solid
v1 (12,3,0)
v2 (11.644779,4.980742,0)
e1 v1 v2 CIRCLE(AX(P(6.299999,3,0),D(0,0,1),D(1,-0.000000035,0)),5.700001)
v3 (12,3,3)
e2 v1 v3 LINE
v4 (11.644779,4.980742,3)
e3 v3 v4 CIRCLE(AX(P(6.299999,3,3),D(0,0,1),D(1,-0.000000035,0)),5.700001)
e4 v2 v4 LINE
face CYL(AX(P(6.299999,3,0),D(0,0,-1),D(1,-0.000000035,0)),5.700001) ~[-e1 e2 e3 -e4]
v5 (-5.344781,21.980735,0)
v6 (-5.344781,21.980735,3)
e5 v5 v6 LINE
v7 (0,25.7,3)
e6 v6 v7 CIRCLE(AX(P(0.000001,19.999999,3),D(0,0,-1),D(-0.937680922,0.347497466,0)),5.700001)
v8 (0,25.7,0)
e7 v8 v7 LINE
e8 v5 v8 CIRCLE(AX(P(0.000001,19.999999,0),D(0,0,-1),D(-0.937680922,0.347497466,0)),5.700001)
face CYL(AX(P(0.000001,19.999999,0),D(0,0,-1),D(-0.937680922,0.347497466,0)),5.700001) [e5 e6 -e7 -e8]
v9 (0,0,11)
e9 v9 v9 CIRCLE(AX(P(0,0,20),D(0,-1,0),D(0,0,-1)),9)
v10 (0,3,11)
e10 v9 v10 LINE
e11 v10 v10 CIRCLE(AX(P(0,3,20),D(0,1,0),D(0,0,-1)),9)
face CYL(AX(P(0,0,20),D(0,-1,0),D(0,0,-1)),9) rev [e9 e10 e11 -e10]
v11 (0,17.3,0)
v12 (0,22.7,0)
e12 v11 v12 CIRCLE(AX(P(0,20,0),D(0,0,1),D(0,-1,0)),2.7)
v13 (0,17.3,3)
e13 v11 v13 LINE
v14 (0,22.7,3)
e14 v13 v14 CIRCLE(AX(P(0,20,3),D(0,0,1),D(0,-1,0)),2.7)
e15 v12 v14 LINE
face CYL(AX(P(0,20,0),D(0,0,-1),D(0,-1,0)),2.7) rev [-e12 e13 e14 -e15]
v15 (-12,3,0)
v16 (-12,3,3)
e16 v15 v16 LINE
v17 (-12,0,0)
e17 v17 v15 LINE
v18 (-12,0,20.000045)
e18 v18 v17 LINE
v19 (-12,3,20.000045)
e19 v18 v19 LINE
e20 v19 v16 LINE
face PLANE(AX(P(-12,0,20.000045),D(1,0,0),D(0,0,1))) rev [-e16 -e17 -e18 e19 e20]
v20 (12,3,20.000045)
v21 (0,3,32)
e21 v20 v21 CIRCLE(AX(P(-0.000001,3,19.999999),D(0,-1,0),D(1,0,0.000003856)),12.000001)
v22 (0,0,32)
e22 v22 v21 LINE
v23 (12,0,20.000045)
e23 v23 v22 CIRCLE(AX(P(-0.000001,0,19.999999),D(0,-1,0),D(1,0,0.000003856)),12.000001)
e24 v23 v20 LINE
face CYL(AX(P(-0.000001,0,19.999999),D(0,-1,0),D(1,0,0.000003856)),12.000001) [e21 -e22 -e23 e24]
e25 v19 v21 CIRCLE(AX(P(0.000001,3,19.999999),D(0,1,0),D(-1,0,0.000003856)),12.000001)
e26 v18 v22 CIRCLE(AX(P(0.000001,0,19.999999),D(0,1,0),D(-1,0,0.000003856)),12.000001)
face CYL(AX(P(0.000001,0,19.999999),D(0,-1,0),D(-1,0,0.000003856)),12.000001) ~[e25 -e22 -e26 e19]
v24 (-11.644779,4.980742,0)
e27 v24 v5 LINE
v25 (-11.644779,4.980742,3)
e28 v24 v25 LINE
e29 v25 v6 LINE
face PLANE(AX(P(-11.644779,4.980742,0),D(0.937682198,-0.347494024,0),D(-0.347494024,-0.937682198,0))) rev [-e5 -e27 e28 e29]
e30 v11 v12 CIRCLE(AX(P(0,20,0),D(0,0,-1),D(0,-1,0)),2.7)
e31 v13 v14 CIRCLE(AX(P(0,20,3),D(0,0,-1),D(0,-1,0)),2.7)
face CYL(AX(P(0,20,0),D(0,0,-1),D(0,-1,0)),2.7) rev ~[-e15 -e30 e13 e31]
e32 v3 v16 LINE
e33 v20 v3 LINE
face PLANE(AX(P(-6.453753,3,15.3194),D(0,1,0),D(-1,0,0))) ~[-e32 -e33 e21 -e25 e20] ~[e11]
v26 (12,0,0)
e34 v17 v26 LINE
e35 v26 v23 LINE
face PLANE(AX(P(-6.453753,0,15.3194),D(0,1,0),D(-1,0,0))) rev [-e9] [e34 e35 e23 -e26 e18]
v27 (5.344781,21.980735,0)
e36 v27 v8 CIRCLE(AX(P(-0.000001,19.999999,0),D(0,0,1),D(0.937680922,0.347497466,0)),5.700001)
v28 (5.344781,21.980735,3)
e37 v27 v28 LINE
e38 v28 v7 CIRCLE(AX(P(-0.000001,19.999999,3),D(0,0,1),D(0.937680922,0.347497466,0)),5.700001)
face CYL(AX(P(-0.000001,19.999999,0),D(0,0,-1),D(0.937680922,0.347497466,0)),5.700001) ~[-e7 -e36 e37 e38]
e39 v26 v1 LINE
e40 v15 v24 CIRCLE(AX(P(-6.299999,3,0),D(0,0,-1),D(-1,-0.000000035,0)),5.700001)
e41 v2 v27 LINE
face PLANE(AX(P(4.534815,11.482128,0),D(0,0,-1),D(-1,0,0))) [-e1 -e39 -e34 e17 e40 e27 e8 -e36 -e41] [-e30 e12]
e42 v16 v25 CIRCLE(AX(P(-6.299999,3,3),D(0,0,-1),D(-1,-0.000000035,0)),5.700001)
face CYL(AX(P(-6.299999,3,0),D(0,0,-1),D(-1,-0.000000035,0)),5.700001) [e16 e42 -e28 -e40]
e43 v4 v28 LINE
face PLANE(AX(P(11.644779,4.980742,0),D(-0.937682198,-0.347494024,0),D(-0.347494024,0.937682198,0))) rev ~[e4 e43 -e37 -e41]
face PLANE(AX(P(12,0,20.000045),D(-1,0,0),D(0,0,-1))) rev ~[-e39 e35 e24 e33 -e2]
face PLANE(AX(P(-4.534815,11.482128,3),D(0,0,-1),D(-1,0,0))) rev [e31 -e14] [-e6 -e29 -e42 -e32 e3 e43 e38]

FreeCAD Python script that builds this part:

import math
import FreeCAD as App
import Part
import Sketcher

doc = App.newDocument("Part")
body = doc.addObject("PartDesign::Body", "Body")

sketch1 = body.newObject("Sketcher::SketchObject", "Sketch")
sketch1.AttachmentSupport = (doc.getObject("XY_Plane"), [""])
sketch1.MapMode = "FlatFace"
sketch1.addGeometry(Part.ArcOfCircle(Part.Circle(App.Vector(0, 20, 0), App.Vector(0, 0, 1), 2.7), math.radians(-90), math.radians(90)), False)
sketch1.addGeometry(Part.LineSegment(App.Vector(0, 17.3, 0), App.Vector(0, 0, 0)), False)
sketch1.addGeometry(Part.LineSegment(App.Vector(0, 0, 0), App.Vector(12, 0, 0)), False)
sketch1.addGeometry(Part.LineSegment(App.Vector(12, 0, 0), App.Vector(12, 3, 0)), False)
sketch1.addGeometry(Part.ArcOfCircle(Part.Circle(App.Vector(6.299999, 3, 0), App.Vector(0, 0, 1), 5.700001), math.radians(-0.000002), math.radians(20.334389)), False)
sketch1.addGeometry(Part.LineSegment(App.Vector(11.644779, 4.980742, 0), App.Vector(5.344781, 21.980735, 0)), False)
sketch1.addGeometry(Part.ArcOfCircle(Part.Circle(App.Vector(-0.000001, 19.999999, 0), App.Vector(0, 0, 1), 5.700001), math.radians(20.334325), math.radians(89.999989)), False)
sketch1.addGeometry(Part.LineSegment(App.Vector(0, 25.7, 0), App.Vector(0, 22.7, 0)), False)
sketch1.addConstraint(Sketcher.Constraint("Coincident", 0, 1, 1, 1))
sketch1.addConstraint(Sketcher.Constraint("Coincident", 1, 2, 2, 1))
sketch1.addConstraint(Sketcher.Constraint("Coincident", 2, 2, 3, 1))
sketch1.addConstraint(Sketcher.Constraint("Tangent", 3, 2, 4, 1))
sketch1.addConstraint(Sketcher.Constraint("Coincident", 4, 2, 5, 1))
sketch1.addConstraint(Sketcher.Constraint("Coincident", 5, 2, 6, 1))
sketch1.addConstraint(Sketcher.Constraint("Coincident", 6, 2, 7, 1))
sketch1.addConstraint(Sketcher.Constraint("Coincident", 7, 2, 0, 2))
sketch1.addConstraint(Sketcher.Constraint("Vertical", 1))
sketch1.addConstraint(Sketcher.Constraint("Horizontal", 2))
sketch1.addConstraint(Sketcher.Constraint("Vertical", 3))
sketch1.addConstraint(Sketcher.Constraint("Vertical", 7))
sketch1.addConstraint(Sketcher.Constraint("Coincident", 1, 2, -1, 1))
sketch1.addConstraint(Sketcher.Constraint("Coincident", 6, 3, 0, 3))
sketch1.addConstraint(Sketcher.Constraint("Equal", 4, 6))
sketch1.addConstraint(Sketcher.Constraint("PointOnObject", 0, 3, -2))
sketch1.addConstraint(Sketcher.Constraint("PointOnObject", 6, 2, -2))
sketch1.addConstraint(Sketcher.Constraint("Equal", 3, 7))
sketch1.addConstraint(Sketcher.Constraint("Radius", 0, 2.7))
sketch1.addConstraint(Sketcher.Constraint("Radius", 4, 5.700001))
sketch1.addConstraint(Sketcher.Constraint("DistanceX", 2, 1, 2, 2, 12.0))
sketch1.addConstraint(Sketcher.Constraint("DistanceY", 1, 2, 1, 1, 17.3))
sketch1.addConstraint(Sketcher.Constraint("DistanceX", -1, 1, 4, 2, 11.644779))
sketch1.addConstraint(Sketcher.Constraint("DistanceX", -1, 1, 5, 2, 5.344781))
pad1 = body.newObject("PartDesign::Pad", "Pad")
pad1.Profile = sketch1
pad1.Length = 3

sketch2 = body.newObject("Sketcher::SketchObject", "Sketch001")
sketch2.AttachmentSupport = (doc.getObject("XZ_Plane"), [""])
sketch2.MapMode = "FlatFace"
sketch2.addGeometry(Part.ArcOfCircle(Part.Circle(App.Vector(0, 20, 0), App.Vector(0, 0, 1), 9), math.radians(-90), math.radians(90)), False)
sketch2.addGeometry(Part.LineSegment(App.Vector(0, 11, 0), App.Vector(0, 0, 0)), False)
sketch2.addGeometry(Part.LineSegment(App.Vector(0, 0, 0), App.Vector(12, 0, 0)), False)
sketch2.addGeometry(Part.LineSegment(App.Vector(12, 0, 0), App.Vector(12, 20.000045, 0)), False)
sketch2.addGeometry(Part.ArcOfCircle(Part.Circle(App.Vector(-0.000001, 19.999999, 0), App.Vector(0, 0, 1), 12.000001), math.radians(0.000221), math.radians(89.999994)), False)
sketch2.addGeometry(Part.LineSegment(App.Vector(0, 32, 0), App.Vector(0, 29, 0)), False)
sketch2.addConstraint(Sketcher.Constraint("Coincident", 0, 1, 1, 1))
sketch2.addConstraint(Sketcher.Constraint("Coincident", 1, 2, 2, 1))
sketch2.addConstraint(Sketcher.Constraint("Coincident", 2, 2, 3, 1))
sketch2.addConstraint(Sketcher.Constraint("Coincident", 3, 2, 4, 1))
sketch2.addConstraint(Sketcher.Constraint("Coincident", 4, 2, 5, 1))
sketch2.addConstraint(Sketcher.Constraint("Coincident", 5, 2, 0, 2))
sketch2.addConstraint(Sketcher.Constraint("Vertical", 1))
sketch2.addConstraint(Sketcher.Constraint("Horizontal", 2))
sketch2.addConstraint(Sketcher.Constraint("Vertical", 3))
sketch2.addConstraint(Sketcher.Constraint("Vertical", 5))
sketch2.addConstraint(Sketcher.Constraint("Coincident", 1, 2, -1, 1))
sketch2.addConstraint(Sketcher.Constraint("Coincident", 4, 3, 0, 3))
sketch2.addConstraint(Sketcher.Constraint("PointOnObject", 0, 3, -2))
sketch2.addConstraint(Sketcher.Constraint("PointOnObject", 4, 2, -2))
sketch2.addConstraint(Sketcher.Constraint("Radius", 0, 9.0))
sketch2.addConstraint(Sketcher.Constraint("Radius", 4, 12.000001))
sketch2.addConstraint(Sketcher.Constraint("DistanceY", 1, 2, 1, 1, 11.0))
sketch2.addConstraint(Sketcher.Constraint("DistanceY", 3, 1, 3, 2, 20.000045))
pad2 = body.newObject("PartDesign::Pad", "Pad001")
pad2.Profile = sketch2
pad2.Length = 3
pad2.Reversed = True
doc.recompute()

mirrored = body.newObject("PartDesign::Mirrored", "Mirrored")
mirrored.Originals = [pad1, pad2]
mirrored.MirrorPlane = (doc.getObject("YZ_Plane"), [""])
body.Tip = mirrored

doc.recompute()
